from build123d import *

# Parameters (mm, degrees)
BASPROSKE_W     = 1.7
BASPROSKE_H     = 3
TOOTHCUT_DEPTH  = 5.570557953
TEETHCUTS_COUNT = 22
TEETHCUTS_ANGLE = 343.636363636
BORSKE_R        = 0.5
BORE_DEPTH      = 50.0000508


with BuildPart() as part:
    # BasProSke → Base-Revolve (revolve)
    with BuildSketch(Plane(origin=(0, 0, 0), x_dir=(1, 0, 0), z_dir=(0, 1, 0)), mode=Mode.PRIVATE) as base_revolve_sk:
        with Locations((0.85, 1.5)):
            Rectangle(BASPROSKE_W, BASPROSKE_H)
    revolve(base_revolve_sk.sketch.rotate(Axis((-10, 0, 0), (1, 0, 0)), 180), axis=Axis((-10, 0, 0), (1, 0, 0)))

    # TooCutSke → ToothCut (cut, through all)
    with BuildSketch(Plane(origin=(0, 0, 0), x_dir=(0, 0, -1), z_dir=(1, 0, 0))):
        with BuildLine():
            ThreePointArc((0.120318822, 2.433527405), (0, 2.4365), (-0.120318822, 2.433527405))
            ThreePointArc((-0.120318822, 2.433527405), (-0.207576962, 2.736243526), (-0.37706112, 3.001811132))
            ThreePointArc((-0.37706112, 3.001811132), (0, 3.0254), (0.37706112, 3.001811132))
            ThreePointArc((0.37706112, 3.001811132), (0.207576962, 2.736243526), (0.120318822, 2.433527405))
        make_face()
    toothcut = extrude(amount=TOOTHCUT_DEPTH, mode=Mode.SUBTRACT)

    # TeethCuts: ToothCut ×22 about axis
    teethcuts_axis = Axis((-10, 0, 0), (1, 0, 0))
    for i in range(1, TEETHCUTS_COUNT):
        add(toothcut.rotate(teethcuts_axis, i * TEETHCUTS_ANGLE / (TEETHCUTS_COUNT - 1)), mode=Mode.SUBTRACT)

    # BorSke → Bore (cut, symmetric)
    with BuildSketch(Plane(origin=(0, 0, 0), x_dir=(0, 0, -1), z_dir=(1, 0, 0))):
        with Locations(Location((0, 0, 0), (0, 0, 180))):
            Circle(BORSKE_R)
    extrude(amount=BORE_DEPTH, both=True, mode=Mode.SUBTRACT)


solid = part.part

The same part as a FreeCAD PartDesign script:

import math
import FreeCAD as App
import Part
import Sketcher

doc = App.newDocument("Part")
params = doc.addObject("Spreadsheet::Sheet", "Params")
for row, (alias, value) in enumerate([
    ("sketch1_height", "3 mm"),
    ("sketch1_width", "1.7 mm"),
    ("revolution_angle", "360 deg"),
    ("sketch2_radius", "1.1 mm"),
    ("sketch3_diameter", "1 mm"),
    ("pocket2_length", "100.000102 mm"),
], start=1):
    params.set(f"A{row}", alias)
    params.set(f"B{row}", "=" + value)
    params.setAlias(f"B{row}", alias)

body = doc.addObject("PartDesign::Body", "Body")

# Sketch on XZ plane
sketch1 = body.newObject("Sketcher::SketchObject", "Sketch")
sketch1.AttachmentSupport = (doc.getObject("XZ_Plane"), [""])
sketch1.MapMode = "FlatFace"
sketch1.addGeometry([
    Part.LineSegment(App.Vector(0, -3, 0), App.Vector(0, 0, 0)),
    Part.LineSegment(App.Vector(0, 0, 0), App.Vector(1.7, 0, 0)),
    Part.LineSegment(App.Vector(1.7, 0, 0), App.Vector(1.7, -3, 0)),
    Part.LineSegment(App.Vector(1.7, -3, 0), App.Vector(0, -3, 0)),
], False)
sketch1.addConstraint([
    Sketcher.Constraint("Coincident", 0, 2, 1, 1),
    Sketcher.Constraint("Coincident", 1, 2, 2, 1),
    Sketcher.Constraint("Coincident", 2, 2, 3, 1),
    Sketcher.Constraint("Coincident", 3, 2, 0, 1),
    Sketcher.Constraint("Vertical", 0),
    Sketcher.Constraint("Horizontal", 1),
    Sketcher.Constraint("Vertical", 2),
    Sketcher.Constraint("Horizontal", 3),
    Sketcher.Constraint("Coincident", 0, 2, -1, 1),
    Sketcher.Constraint("DistanceY", 0, 1, 0, 2, 3.0),
    Sketcher.Constraint("DistanceX", 1, 1, 1, 2, 1.7),
])
sketch1.setExpression("Constraints[9]", "Params.sketch1_height")
sketch1.setExpression("Constraints[10]", "Params.sketch1_width")
revolution = body.newObject("PartDesign::Revolution", "Revolution")
revolution.Profile = sketch1
revolution.ReferenceAxis = (sketch1, ["H_Axis"])
revolution.setExpression("Angle", "Params.revolution_angle")

# Sketch on YZ plane
sketch2 = body.newObject("Sketcher::SketchObject", "Sketch001")
sketch2.AttachmentSupport = (doc.getObject("YZ_Plane"), [""])
sketch2.MapMode = "FlatFace"
sketch2.addGeometry([
    Part.ArcOfCircle(Part.Circle(App.Vector(0, 0, 0), App.Vector(0, 0, 1), 2.44), math.radians(-2.83), math.radians(2.83)),
    Part.ArcOfCircle(Part.Circle(App.Vector(2.28, -1.21, 0), App.Vector(0, 0, 1), 1.1), math.radians(49), math.radians(82)),
    Part.ArcOfCircle(Part.Circle(App.Vector(0, 0, 0), App.Vector(0, 0, 1), 3.03), math.radians(-7.16), math.radians(7.16)),
    Part.ArcOfCircle(Part.Circle(App.Vector(2.28, 1.21, 0), App.Vector(0, 0, 1), 1.1), math.radians(-82), math.radians(-49)),
], False)
sketch2.addConstraint([
    Sketcher.Constraint("Coincident", 0, 1, 1, 2),
    Sketcher.Constraint("Coincident", 1, 1, 2, 1),
    Sketcher.Constraint("Coincident", 2, 2, 3, 2),
    Sketcher.Constraint("Coincident", 3, 1, 0, 2),
    Sketcher.Constraint("Coincident", 0, 3, -1, 1),
    Sketcher.Constraint("Coincident", 2, 3, -1, 1),
    Sketcher.Constraint("Equal", 1, 3),
    Sketcher.Constraint("Symmetric", 1, 3, 3, 3, -1),
    Sketcher.Constraint("Radius", 1, 1.1),
    Sketcher.Constraint("Radius", 0, 2.4365),
    Sketcher.Constraint("Radius", 2, 3.0254),
    Sketcher.Constraint("DistanceY", 1, 3, 0, 1, 1.089701),
    Sketcher.Constraint("DistanceY", 1, 3, -1, 1, 1.21002),
])
sketch2.setExpression("Constraints[8]", "Params.sketch2_radius")
pocket1 = body.newObject("PartDesign::Pocket", "Pocket")
pocket1.Profile = sketch2
pocket1.Type = "ThroughAll"
pocket1.Reversed = True
doc.recompute()

polarpattern = body.newObject("PartDesign::PolarPattern", "PolarPattern")
polarpattern.Originals = [pocket1]
polarpattern.Axis = (doc.getObject("X_Axis"), [""])
polarpattern.Angle = 360
polarpattern.Occurrences = 22
body.Tip = polarpattern

# Sketch on YZ plane
sketch3 = body.newObject("Sketcher::SketchObject", "Sketch002")
sketch3.AttachmentSupport = (doc.getObject("YZ_Plane"), [""])
sketch3.MapMode = "FlatFace"
sketch3.addGeometry(Part.Circle(App.Vector(0, 0, 0), App.Vector(0, 0, 1), 0.5), False)
sketch3.addConstraint([
    Sketcher.Constraint("Coincident", 0, 3, -1, 1),
    Sketcher.Constraint("Diameter", 0, 1.0),
])
sketch3.setExpression("Constraints[1]", "Params.sketch3_diameter")
pocket2 = body.newObject("PartDesign::Pocket", "Pocket001")
pocket2.Profile = sketch3
pocket2.setExpression("Length", "Params.pocket2_length")
pocket2.Midplane = True

doc.recompute()
